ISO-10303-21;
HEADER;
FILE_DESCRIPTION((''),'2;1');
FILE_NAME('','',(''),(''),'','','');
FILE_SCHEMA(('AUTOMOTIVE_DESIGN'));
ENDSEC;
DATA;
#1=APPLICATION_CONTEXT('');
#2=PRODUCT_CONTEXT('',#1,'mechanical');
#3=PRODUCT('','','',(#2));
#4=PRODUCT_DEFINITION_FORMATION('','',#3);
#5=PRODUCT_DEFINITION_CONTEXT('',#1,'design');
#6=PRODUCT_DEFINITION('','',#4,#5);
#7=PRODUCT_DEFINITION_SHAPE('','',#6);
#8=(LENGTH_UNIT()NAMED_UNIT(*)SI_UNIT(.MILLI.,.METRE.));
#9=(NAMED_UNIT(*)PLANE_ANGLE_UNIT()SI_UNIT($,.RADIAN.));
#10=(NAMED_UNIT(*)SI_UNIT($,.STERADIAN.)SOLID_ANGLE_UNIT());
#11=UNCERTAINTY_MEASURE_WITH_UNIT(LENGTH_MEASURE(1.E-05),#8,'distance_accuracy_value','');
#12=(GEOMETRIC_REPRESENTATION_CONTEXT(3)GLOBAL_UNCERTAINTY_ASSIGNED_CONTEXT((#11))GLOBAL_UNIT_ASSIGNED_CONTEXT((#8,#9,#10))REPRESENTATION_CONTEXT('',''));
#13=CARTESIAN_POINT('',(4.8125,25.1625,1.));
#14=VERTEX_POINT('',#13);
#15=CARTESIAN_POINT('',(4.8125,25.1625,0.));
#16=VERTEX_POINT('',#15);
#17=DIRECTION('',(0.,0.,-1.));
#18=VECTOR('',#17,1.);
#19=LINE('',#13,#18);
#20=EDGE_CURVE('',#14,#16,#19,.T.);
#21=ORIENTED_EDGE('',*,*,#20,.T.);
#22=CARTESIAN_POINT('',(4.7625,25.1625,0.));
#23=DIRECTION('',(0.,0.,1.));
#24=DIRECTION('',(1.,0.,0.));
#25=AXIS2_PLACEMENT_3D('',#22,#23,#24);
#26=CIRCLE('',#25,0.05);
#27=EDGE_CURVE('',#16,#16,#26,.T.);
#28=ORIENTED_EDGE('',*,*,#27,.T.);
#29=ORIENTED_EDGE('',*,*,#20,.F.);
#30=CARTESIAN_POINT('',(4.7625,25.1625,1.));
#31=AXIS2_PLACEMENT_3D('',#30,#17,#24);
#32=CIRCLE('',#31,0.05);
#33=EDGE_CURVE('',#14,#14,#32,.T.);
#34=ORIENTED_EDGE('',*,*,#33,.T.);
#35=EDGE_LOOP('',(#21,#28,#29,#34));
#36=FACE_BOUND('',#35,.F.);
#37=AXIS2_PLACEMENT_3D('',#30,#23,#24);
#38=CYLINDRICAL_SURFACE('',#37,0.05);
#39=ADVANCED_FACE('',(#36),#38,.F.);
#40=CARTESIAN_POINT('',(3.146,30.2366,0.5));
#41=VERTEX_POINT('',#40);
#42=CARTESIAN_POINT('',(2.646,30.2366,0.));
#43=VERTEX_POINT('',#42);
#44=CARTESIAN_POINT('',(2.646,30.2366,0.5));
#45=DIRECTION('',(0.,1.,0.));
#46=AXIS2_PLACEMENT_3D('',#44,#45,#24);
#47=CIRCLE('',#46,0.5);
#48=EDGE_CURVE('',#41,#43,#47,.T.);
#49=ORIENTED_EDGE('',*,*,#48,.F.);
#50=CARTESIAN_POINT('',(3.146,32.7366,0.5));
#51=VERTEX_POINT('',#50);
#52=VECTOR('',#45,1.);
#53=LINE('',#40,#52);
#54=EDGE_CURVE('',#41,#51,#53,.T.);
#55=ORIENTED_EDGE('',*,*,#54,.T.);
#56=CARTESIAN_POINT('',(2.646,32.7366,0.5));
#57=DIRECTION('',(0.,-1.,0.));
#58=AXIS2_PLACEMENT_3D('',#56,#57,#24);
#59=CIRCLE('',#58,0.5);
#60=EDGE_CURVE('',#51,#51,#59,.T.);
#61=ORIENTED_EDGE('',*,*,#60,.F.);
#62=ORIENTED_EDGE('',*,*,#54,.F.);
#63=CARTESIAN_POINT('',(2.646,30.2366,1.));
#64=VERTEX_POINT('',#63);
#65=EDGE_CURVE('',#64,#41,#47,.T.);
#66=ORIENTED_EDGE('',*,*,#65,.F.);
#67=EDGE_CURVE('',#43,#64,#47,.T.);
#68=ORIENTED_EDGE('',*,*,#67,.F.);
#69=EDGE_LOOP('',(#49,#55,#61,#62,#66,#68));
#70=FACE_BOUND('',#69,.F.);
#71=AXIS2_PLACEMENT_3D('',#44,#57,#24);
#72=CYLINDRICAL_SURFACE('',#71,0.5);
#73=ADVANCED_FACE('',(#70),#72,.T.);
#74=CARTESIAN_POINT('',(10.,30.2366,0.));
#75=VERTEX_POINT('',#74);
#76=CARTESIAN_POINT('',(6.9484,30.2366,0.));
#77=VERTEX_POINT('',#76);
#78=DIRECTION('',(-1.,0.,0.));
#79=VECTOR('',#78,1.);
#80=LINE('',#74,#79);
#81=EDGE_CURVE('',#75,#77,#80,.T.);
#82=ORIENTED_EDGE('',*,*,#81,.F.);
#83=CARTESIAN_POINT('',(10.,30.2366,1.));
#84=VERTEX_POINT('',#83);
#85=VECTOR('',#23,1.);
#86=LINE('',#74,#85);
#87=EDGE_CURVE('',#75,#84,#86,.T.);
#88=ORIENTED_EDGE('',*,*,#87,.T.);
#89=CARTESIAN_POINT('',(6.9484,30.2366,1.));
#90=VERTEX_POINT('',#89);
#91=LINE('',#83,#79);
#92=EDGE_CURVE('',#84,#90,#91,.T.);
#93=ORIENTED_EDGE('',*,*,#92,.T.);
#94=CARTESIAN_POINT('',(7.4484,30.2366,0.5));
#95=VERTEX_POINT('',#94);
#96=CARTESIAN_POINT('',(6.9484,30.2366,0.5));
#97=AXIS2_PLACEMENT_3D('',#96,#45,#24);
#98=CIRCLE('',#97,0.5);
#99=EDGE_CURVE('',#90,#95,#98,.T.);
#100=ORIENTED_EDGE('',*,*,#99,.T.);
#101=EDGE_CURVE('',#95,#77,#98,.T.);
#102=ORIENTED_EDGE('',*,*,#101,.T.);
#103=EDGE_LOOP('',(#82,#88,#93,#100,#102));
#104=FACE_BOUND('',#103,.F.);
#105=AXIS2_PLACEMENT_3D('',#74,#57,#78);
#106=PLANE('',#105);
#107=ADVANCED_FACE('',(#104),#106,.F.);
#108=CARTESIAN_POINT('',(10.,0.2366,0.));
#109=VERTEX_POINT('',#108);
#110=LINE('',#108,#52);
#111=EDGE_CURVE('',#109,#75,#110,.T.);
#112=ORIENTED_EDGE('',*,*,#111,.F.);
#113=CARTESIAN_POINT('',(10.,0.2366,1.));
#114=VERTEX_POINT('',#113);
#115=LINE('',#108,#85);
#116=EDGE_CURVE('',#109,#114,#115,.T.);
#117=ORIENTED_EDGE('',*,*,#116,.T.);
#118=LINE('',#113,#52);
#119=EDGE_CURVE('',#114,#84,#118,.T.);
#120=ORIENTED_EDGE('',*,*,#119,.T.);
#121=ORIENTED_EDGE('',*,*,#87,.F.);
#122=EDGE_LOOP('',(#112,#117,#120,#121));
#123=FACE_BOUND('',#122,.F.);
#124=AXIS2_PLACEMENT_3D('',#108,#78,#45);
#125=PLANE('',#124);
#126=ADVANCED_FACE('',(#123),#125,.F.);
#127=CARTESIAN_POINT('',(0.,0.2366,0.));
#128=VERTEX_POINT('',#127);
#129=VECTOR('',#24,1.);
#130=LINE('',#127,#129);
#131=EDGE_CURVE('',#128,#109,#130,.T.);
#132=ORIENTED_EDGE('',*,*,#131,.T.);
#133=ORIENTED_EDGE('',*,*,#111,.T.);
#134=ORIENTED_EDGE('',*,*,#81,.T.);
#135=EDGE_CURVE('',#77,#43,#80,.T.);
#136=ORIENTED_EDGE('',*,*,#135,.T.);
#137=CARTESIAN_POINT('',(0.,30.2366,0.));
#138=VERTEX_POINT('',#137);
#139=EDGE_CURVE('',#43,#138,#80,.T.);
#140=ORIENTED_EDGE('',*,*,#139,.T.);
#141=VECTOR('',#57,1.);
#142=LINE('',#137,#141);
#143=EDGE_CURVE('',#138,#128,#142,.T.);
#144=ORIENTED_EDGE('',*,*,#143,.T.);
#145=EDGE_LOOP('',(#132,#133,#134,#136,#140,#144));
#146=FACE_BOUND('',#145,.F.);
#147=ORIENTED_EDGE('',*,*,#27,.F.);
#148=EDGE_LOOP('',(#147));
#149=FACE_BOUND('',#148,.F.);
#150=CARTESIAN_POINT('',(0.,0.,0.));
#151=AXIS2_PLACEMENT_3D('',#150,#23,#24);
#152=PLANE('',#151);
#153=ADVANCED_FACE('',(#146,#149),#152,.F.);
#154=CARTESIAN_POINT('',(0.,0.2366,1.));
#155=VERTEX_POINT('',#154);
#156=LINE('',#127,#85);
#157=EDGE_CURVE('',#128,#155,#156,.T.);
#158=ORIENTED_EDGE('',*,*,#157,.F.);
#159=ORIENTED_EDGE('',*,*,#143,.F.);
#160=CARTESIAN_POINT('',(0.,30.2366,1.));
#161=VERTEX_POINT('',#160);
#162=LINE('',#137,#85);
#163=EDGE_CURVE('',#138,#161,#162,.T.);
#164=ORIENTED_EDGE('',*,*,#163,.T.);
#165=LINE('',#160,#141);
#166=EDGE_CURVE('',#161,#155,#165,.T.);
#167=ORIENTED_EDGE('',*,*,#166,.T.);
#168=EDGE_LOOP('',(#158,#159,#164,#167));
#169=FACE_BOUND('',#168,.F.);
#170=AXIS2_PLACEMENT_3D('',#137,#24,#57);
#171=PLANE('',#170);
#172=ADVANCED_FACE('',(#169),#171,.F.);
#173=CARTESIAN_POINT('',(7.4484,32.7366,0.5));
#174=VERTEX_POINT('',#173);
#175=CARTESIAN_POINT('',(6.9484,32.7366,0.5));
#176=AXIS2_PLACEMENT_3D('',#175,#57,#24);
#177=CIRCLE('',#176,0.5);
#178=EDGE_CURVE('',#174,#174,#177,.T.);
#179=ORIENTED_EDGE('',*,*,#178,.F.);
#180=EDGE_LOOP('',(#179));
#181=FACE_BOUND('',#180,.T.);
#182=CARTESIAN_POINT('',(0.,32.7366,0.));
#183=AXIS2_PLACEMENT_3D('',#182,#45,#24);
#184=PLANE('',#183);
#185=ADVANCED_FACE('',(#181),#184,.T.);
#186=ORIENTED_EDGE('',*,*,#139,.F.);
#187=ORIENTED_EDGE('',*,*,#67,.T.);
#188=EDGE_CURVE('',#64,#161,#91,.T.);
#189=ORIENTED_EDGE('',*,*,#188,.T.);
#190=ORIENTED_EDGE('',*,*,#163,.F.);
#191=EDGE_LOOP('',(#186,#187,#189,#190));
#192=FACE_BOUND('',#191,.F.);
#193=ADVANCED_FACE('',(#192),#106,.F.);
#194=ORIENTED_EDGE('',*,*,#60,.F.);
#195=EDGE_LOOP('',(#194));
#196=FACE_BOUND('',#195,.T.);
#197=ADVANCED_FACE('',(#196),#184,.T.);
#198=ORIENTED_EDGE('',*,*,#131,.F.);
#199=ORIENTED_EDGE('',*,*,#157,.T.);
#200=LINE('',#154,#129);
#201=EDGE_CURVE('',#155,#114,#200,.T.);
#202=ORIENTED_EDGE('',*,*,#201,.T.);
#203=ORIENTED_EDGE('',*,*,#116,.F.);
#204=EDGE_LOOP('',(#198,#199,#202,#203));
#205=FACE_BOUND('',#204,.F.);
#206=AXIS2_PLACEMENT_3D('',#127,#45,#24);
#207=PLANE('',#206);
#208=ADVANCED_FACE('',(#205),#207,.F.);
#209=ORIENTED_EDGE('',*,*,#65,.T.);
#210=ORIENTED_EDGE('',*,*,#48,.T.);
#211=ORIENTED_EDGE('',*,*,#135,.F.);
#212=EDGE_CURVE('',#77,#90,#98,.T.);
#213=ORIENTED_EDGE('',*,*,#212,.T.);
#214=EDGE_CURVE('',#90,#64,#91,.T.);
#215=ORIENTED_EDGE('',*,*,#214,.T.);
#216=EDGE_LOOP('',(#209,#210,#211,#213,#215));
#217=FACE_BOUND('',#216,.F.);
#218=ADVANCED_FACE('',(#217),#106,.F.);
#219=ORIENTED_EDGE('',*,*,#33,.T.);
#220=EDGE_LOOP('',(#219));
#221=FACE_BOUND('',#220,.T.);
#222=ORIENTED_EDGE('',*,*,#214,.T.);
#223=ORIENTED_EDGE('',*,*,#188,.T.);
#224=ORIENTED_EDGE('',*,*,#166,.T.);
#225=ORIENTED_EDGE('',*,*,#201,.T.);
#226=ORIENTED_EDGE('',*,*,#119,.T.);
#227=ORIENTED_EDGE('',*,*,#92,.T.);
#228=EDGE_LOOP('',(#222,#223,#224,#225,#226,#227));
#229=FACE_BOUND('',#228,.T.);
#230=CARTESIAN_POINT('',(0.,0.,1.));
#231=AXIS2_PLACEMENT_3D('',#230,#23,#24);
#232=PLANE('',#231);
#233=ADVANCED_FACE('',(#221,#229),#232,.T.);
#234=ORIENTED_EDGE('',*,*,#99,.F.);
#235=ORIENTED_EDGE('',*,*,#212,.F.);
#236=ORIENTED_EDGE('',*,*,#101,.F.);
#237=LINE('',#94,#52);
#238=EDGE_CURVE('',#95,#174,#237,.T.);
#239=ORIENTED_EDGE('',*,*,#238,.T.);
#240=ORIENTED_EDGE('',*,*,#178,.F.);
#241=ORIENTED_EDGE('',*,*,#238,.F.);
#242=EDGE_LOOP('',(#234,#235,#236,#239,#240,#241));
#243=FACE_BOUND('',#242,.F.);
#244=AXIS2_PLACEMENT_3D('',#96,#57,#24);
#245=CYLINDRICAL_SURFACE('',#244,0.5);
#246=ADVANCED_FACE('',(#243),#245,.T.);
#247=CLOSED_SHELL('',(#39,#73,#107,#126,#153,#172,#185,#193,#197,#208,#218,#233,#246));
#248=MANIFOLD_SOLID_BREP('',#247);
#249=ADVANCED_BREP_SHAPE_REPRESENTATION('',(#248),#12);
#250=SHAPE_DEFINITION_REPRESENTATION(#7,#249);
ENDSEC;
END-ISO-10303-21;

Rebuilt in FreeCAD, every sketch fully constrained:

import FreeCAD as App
import Part
import Sketcher

V = App.Vector


def add_polygon(sketch, points):
    """Adds a closed chain of lines whose ends are joined by coincident constraints."""
    first, n = sketch.GeometryCount, len(points)
    for a, b in zip(points, points[1:] + points[:1]):
        sketch.addGeometry(Part.LineSegment(App.Vector(*a, 0), App.Vector(*b, 0)), False)
    for i in range(n):
        sketch.addConstraint(Sketcher.Constraint("Coincident", first + i, 2, first + (i + 1) % n, 1))

doc = App.newDocument("Part")
body = doc.addObject("PartDesign::Body", "Body")

# Sketch on XY plane
sketch1 = doc.addObject("Sketcher::SketchObject", "Sketch")
body.addObject(sketch1)
sketch1.AttachmentSupport = (doc.XY_Plane, [""])
sketch1.MapMode = "FlatFace"
add_polygon(sketch1, [(0, 30), (0, 0), (10, 0), (10, 30)])  # lines 0-3
sketch1.addConstraint([
    Sketcher.Constraint("Vertical", 0),
    Sketcher.Constraint("Horizontal", 1),
    Sketcher.Constraint("Vertical", 2),
    Sketcher.Constraint("Horizontal", 3),
    Sketcher.Constraint("PointOnObject", 0, 2, -2),
    Sketcher.Constraint("DistanceX", 1, 1, 1, 2, 10.0),
    Sketcher.Constraint("DistanceY", 0, 2, 0, 1, 30.0),
    Sketcher.Constraint("DistanceY", -1, 1, 0, 2, 0.2366),
])
pad1 = doc.addObject("PartDesign::Pad", "Pad")
body.addObject(pad1)
pad1.Profile = sketch1
pad1.Length = 1

# Sketch on XZ plane
sketch2 = doc.addObject("Sketcher::SketchObject", "Sketch001")
body.addObject(sketch2)
sketch2.AttachmentSupport = (doc.XZ_Plane, [""])
sketch2.MapMode = "FlatFace"
sketch2.AttachmentOffset = App.Placement(V(0, 0, -30.2366), App.Rotation())
sketch2.addGeometry([
    Part.Circle(V(2.6, 0.5, 0), V(0, 0, 1), 0.5),
    Part.Circle(V(6.9, 0.5, 0), V(0, 0, 1), 0.5),
], False)
sketch2.addConstraint([
    Sketcher.Constraint("Equal", 0, 1),
    Sketcher.Constraint("Horizontal", 0, 3, 1, 3),
    Sketcher.Constraint("Diameter", 0, 1.0),
    Sketcher.Constraint("DistanceY", -1, 1, 0, 3, 0.5),
    Sketcher.Constraint("DistanceX", -1, 1, 0, 3, 2.646),
    Sketcher.Constraint("DistanceX", -1, 1, 1, 3, 6.9484),
])
pad2 = doc.addObject("PartDesign::Pad", "Pad001")
body.addObject(pad2)
pad2.Profile = sketch2
pad2.Length = 2.5
pad2.Reversed = True

# Sketch on XY plane
sketch3 = doc.addObject("Sketcher::SketchObject", "Sketch002")
body.addObject(sketch3)
sketch3.AttachmentSupport = (doc.XY_Plane, [""])
sketch3.MapMode = "FlatFace"
sketch3.AttachmentOffset = App.Placement(V(0, 0, 1), App.Rotation())
sketch3.addGeometry(Part.Circle(V(4.76, 25.16, 0), V(0, 0, 1), 0.05), False)
sketch3.addConstraint([
    Sketcher.Constraint("Diameter", 0, 0.1),
    Sketcher.Constraint("DistanceX", -1, 1, 0, 3, 4.7625),
    Sketcher.Constraint("DistanceY", -1, 1, 0, 3, 25.1625),
])
pocket1 = doc.addObject("PartDesign::Pocket", "Pocket")
body.addObject(pocket1)
pocket1.Profile = sketch3
pocket1.Type = "ThroughAll"

doc.recompute()
